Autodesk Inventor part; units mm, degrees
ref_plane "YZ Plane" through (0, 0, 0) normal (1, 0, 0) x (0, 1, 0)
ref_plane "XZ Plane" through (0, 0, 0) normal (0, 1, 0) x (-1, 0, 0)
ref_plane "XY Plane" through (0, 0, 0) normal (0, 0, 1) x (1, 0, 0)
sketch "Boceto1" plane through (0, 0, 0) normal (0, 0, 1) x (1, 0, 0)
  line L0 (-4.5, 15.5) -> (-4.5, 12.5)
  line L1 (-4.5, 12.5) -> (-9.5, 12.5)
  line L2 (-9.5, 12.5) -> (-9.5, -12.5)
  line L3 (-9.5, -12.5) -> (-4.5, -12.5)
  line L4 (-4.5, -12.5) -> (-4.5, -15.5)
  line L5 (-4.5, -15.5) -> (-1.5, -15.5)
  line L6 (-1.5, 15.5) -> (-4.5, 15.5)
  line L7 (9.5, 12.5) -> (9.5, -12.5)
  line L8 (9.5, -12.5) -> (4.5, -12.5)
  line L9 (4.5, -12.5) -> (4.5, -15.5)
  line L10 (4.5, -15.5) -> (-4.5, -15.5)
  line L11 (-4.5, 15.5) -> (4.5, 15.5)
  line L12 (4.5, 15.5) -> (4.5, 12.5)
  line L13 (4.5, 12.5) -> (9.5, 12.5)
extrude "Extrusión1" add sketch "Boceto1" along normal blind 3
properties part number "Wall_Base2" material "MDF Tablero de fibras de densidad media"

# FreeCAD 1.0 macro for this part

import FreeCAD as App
import Part
import Sketcher

V = App.Vector


def add_polygon(sketch, points):
    """Adds a closed chain of lines whose ends are joined by coincident constraints."""
    first, n = sketch.GeometryCount, len(points)
    for a, b in zip(points, points[1:] + points[:1]):
        sketch.addGeometry(Part.LineSegment(App.Vector(*a, 0), App.Vector(*b, 0)), False)
    for i in range(n):
        sketch.addConstraint(Sketcher.Constraint("Coincident", first + i, 2, first + (i + 1) % n, 1))

doc = App.newDocument("Part")
body = doc.addObject("PartDesign::Body", "Body")

# Sketch on XY plane
sketch1 = doc.addObject("Sketcher::SketchObject", "Sketch")
body.addObject(sketch1)
sketch1.AttachmentSupport = (doc.XY_Plane, [""])
sketch1.MapMode = "FlatFace"
add_polygon(sketch1, [(4.5, 15.5), (-4.5, 15.5), (-4.5, 12.5), (-9.5, 12.5), (-9.5, -12.5), (-4.5, -12.5), (-4.5, -15.5), (4.5, -15.5), (4.5, -12.5), (9.5, -12.5), (9.5, 12.5), (4.5, 12.5)])  # lines 0-11
sketch1.addConstraint([
    Sketcher.Constraint("Horizontal", 0),
    Sketcher.Constraint("Vertical", 1),
    Sketcher.Constraint("Horizontal", 2),
    Sketcher.Constraint("Vertical", 3),
    Sketcher.Constraint("Horizontal", 4),
    Sketcher.Constraint("Vertical", 5),
    Sketcher.Constraint("Horizontal", 6),
    Sketcher.Constraint("Vertical", 7),
    Sketcher.Constraint("Horizontal", 8),
    Sketcher.Constraint("Vertical", 9),
    Sketcher.Constraint("Horizontal", 10),
    Sketcher.Constraint("Vertical", 11),
    Sketcher.Constraint("Symmetric", 0, 2, 6, 2, -1, 1),
    Sketcher.Constraint("Symmetric", 2, 2, 8, 2, -1, 1),
    Sketcher.Constraint("Symmetric", 4, 2, 10, 2, -1, 1),
    Sketcher.Constraint("Symmetric", 4, 2, 7, 2, -2),
    Sketcher.Constraint("DistanceX", 0, 2, 0, 1, 9.0),
    Sketcher.Constraint("DistanceX", 2, 2, 2, 1, 5.0),
    Sketcher.Constraint("DistanceY", 1, 2, 1, 1, 3.0),
    Sketcher.Constraint("DistanceY", 3, 2, 3, 1, 25.0),
])
pad1 = doc.addObject("PartDesign::Pad", "Pad")
body.addObject(pad1)
pad1.Profile = sketch1
pad1.Length = 3

doc.recompute()
